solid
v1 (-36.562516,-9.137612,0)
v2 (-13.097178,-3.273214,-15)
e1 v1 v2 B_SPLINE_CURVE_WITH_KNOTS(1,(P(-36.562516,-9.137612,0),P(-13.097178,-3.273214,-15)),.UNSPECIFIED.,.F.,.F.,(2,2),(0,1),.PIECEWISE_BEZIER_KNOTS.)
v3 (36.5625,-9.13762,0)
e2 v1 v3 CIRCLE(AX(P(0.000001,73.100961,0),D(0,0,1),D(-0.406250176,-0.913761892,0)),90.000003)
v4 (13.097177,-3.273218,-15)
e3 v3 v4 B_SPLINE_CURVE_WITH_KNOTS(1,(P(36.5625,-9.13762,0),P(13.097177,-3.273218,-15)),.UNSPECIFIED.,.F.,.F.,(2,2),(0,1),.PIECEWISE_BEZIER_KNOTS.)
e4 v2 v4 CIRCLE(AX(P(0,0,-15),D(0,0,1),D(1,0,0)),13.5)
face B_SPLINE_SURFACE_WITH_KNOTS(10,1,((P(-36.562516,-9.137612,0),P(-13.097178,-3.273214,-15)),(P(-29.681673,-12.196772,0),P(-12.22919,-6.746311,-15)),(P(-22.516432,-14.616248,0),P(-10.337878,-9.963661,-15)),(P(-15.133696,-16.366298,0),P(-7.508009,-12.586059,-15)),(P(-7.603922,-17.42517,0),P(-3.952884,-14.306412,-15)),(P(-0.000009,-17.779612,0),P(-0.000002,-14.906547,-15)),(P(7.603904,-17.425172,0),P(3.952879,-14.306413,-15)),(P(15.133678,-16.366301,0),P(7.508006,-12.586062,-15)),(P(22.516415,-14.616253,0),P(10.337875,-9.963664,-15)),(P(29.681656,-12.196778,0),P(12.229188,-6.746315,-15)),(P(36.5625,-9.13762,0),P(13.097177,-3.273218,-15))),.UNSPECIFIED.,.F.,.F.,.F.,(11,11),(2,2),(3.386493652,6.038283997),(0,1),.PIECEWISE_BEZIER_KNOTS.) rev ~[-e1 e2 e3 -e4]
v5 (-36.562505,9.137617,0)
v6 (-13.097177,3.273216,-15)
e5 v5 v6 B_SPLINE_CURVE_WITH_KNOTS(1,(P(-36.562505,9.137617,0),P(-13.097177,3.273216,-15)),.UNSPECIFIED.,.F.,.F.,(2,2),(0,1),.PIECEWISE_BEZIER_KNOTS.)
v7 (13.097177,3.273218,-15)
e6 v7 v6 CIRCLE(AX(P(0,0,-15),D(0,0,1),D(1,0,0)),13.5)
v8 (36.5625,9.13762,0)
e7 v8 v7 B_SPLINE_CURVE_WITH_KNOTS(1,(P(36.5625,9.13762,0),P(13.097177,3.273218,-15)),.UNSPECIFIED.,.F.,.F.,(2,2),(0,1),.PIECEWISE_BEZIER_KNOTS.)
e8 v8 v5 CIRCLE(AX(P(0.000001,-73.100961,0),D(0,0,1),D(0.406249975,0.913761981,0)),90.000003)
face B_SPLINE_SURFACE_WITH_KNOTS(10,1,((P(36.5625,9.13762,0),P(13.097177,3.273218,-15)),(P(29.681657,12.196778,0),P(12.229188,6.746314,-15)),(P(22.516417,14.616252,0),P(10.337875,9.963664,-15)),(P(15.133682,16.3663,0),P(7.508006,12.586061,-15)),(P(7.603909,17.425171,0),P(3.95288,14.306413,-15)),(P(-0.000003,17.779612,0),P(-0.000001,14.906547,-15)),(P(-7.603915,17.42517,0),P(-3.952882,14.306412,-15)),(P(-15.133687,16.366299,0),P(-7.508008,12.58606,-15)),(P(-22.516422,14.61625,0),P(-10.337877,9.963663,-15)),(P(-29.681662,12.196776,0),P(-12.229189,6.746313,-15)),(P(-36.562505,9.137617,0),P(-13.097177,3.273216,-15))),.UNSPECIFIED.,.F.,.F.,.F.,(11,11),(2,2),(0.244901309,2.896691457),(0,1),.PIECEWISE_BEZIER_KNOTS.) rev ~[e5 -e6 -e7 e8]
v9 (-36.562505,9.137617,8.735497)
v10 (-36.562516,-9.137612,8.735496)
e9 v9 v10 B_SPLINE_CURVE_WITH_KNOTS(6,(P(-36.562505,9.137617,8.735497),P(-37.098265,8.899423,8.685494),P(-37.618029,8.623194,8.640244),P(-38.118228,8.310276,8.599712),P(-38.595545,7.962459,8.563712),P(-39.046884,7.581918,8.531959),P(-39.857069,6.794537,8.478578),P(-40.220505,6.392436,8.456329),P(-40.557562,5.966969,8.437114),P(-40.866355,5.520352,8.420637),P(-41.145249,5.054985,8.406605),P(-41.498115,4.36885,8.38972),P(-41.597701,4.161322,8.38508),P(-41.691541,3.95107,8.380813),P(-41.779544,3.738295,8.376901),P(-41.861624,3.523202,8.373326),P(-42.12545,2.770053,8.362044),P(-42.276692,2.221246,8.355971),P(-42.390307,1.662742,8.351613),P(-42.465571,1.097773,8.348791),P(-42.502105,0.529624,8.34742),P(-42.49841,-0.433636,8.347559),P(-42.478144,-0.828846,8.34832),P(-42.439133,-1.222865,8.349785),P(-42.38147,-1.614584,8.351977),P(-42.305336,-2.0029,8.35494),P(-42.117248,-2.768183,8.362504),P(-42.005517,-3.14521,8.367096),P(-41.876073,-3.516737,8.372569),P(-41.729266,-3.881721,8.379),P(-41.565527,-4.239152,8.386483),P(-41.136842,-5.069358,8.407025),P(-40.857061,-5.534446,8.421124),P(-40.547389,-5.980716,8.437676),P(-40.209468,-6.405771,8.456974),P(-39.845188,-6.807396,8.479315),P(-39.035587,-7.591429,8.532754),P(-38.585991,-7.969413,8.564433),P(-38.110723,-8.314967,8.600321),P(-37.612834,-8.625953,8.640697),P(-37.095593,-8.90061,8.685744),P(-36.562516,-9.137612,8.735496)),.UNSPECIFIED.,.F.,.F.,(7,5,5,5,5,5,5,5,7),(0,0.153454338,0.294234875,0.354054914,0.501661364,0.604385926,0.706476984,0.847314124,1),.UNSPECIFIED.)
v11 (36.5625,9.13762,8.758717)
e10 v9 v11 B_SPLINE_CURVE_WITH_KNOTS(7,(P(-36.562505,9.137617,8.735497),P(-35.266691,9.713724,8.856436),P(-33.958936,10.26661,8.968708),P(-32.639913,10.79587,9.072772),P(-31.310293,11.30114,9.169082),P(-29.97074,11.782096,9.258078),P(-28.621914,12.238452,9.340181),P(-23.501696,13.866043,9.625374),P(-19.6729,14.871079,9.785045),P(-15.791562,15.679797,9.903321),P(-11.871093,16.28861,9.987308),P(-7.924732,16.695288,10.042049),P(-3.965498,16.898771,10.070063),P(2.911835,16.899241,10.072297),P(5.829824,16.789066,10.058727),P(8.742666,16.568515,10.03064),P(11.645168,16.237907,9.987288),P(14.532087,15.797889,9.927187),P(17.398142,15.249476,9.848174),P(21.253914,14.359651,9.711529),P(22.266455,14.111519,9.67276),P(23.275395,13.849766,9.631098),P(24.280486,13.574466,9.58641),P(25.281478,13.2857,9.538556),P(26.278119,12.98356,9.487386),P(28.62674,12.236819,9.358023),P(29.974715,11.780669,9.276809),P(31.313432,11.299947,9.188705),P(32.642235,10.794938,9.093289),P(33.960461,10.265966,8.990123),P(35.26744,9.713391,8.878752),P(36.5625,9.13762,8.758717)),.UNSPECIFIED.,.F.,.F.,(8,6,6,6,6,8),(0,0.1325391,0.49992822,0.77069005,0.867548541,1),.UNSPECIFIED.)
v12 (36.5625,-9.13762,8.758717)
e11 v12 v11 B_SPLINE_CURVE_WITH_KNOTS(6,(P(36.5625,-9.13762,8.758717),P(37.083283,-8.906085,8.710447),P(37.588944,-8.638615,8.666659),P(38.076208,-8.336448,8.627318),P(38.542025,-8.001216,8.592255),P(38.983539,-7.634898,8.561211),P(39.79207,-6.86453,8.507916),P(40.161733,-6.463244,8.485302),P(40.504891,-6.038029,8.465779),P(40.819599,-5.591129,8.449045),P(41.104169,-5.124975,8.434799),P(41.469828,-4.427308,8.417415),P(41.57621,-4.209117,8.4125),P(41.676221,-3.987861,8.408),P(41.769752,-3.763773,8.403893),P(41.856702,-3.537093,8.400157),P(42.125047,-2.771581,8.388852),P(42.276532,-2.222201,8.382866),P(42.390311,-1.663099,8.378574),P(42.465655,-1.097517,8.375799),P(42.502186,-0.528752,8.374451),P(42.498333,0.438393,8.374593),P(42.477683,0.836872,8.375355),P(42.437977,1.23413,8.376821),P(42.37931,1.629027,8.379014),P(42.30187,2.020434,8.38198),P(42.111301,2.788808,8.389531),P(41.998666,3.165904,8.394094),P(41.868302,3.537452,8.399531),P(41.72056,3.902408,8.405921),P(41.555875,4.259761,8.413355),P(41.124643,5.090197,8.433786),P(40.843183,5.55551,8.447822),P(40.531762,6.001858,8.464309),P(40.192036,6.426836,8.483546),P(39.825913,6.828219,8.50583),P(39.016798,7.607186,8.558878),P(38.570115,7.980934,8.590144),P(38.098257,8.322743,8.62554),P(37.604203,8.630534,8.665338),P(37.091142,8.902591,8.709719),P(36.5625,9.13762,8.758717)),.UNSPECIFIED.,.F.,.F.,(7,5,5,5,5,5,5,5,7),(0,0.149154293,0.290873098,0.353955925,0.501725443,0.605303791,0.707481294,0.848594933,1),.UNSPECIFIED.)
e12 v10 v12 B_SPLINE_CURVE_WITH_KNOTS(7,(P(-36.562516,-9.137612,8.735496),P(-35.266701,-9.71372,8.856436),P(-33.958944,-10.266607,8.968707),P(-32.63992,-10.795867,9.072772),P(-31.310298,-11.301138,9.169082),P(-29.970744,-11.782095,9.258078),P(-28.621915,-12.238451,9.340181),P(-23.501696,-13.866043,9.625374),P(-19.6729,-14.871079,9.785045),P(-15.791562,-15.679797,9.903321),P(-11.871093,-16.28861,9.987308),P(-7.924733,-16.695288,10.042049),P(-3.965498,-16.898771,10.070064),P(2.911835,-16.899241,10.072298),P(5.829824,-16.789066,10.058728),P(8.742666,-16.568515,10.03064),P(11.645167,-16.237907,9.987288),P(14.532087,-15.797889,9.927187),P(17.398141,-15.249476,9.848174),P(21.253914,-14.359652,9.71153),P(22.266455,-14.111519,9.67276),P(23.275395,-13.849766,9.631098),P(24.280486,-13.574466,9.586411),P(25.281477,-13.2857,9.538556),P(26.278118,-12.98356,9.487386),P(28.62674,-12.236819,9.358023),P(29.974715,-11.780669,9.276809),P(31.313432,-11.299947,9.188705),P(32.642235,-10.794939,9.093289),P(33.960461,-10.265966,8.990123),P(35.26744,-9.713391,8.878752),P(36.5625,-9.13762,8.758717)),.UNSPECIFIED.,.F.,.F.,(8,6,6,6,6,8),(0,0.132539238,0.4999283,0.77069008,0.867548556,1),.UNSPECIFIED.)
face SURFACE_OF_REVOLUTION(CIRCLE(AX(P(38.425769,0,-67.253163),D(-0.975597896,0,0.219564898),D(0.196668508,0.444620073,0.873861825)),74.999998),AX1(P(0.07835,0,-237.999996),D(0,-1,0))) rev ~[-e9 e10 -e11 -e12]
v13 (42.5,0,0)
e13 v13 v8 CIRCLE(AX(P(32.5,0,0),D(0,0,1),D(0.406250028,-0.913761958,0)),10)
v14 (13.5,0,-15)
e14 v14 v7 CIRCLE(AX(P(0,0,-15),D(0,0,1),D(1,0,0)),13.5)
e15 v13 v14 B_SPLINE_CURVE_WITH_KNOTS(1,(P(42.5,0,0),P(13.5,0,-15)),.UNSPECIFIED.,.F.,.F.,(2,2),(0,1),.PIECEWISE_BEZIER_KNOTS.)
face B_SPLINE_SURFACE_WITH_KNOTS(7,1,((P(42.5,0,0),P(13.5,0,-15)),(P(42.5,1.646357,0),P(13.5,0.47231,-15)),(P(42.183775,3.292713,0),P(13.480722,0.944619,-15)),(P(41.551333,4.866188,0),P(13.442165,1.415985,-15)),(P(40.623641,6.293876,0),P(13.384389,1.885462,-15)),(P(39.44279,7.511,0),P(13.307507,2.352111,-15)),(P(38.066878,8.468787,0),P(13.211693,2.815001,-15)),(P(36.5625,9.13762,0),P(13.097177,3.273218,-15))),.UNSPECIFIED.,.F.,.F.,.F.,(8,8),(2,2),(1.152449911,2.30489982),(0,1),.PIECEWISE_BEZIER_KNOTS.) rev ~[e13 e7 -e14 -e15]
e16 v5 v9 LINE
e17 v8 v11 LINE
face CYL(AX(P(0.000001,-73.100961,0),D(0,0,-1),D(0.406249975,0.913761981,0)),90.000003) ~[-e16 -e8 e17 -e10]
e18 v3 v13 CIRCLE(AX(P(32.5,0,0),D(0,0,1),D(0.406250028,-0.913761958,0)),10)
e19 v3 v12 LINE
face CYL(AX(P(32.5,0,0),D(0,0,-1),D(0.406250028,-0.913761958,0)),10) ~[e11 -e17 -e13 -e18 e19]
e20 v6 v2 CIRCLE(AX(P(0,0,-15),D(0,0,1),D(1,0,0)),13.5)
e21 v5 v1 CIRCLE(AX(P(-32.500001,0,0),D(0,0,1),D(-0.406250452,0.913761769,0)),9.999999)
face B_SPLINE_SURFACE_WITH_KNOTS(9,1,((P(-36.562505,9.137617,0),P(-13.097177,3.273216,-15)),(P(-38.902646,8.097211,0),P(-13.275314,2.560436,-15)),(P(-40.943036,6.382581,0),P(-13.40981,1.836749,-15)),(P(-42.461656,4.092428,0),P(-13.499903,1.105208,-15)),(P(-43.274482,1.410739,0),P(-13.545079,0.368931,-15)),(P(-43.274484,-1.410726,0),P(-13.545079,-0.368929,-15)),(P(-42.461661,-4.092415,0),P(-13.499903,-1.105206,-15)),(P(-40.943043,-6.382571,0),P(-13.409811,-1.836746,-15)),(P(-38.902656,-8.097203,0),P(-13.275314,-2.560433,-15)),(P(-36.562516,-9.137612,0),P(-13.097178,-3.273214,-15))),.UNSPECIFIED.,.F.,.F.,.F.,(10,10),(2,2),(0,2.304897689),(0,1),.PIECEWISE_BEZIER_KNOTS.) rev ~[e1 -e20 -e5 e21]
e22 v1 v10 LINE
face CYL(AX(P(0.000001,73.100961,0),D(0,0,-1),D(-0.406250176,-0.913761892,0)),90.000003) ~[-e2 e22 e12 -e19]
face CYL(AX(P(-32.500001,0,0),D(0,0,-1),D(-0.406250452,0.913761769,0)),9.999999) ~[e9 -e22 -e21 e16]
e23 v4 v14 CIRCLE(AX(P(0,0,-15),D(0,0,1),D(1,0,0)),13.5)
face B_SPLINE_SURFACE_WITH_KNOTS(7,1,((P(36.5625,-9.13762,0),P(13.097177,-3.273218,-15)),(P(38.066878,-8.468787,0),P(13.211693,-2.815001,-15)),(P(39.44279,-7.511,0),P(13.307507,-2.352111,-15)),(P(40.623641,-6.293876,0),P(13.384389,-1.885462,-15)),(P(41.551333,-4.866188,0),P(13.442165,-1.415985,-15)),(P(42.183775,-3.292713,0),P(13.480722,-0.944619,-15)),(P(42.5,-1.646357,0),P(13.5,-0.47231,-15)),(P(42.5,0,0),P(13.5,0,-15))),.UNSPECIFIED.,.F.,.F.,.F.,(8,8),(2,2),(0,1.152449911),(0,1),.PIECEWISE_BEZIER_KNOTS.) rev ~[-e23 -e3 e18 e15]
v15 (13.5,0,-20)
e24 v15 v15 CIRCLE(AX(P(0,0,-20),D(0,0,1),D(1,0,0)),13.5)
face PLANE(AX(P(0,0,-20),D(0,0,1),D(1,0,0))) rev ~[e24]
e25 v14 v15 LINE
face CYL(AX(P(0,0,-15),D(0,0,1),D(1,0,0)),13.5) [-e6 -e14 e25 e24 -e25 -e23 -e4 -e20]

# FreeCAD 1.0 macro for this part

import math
import FreeCAD as App
import Part
import Sketcher
from FreeCAD import Vector

doc = App.newDocument("Part")
body = doc.addObject("PartDesign::Body", "Body")

# Sketch on XY plane
sketch1 = body.newObject("Sketcher::SketchObject", "Sketch")
sketch1.AttachmentSupport = (doc.getObject("XY_Plane"), [""])
sketch1.MapMode = "FlatFace"
sketch1.addGeometry(Part.ArcOfCircle(Part.Circle(Vector(-33, 0, 0), Vector(0, 0, 1), 10), math.radians(114), math.radians(246)), False)
sketch1.addGeometry(Part.ArcOfCircle(Part.Circle(Vector(0, 73, 0), Vector(0, 0, 1), 90), math.radians(-114), math.radians(-66)), False)
sketch1.addGeometry(Part.ArcOfCircle(Part.Circle(Vector(32, 0, 0), Vector(0, 0, 1), 10), math.radians(-66), math.radians(66)), False)
sketch1.addGeometry(Part.ArcOfCircle(Part.Circle(Vector(0, -73, 0), Vector(0, 0, 1), 90), math.radians(66), math.radians(114)), False)
sketch1.addConstraint(Sketcher.Constraint("Tangent", 0, 2, 1, 1))
sketch1.addConstraint(Sketcher.Constraint("Tangent", 1, 2, 2, 1))
sketch1.addConstraint(Sketcher.Constraint("Tangent", 2, 2, 3, 1))
sketch1.addConstraint(Sketcher.Constraint("Tangent", 3, 2, 0, 1))
sketch1.addConstraint(Sketcher.Constraint("Equal", 0, 2))
sketch1.addConstraint(Sketcher.Constraint("Equal", 1, 3))
sketch1.addConstraint(Sketcher.Constraint("Symmetric", 0, 3, 2, 3, -1, 1))
sketch1.addConstraint(Sketcher.Constraint("PointOnObject", 0, 3, -1))
sketch1.addConstraint(Sketcher.Constraint("Radius", 0, 9.999999))
sketch1.addConstraint(Sketcher.Constraint("DistanceX", 0, 3, 2, 3, 65.0))
sketch1.addConstraint(Sketcher.Constraint("Radius", 1, 90.000003))

# Sketch on XY plane
sketch2 = body.newObject("Sketcher::SketchObject", "Sketch001")
sketch2.AttachmentSupport = (doc.getObject("XY_Plane"), [""])
sketch2.MapMode = "FlatFace"
sketch2.AttachmentOffset = App.Placement(Vector(0, 0, -15), App.Rotation())
sketch2.addGeometry(Part.Circle(Vector(0, 0, 0), Vector(0, 0, 1), 14), False)
sketch2.addConstraint(Sketcher.Constraint("Coincident", 0, 3, -1, 1))
sketch2.addConstraint(Sketcher.Constraint("Diameter", 0, 27.0))

additiveloft = body.newObject("PartDesign::AdditiveLoft", "AdditiveLoft")
additiveloft.Profile = sketch1
additiveloft.Sections = [sketch2]

# Sketch on XY plane
sketch3 = body.newObject("Sketcher::SketchObject", "Sketch002")
sketch3.AttachmentSupport = (doc.getObject("XY_Plane"), [""])
sketch3.MapMode = "FlatFace"
sketch3.addGeometry(Part.ArcOfCircle(Part.Circle(Vector(-33, 0, 0), Vector(0, 0, 1), 10), math.radians(114), math.radians(246)), False)
sketch3.addGeometry(Part.ArcOfCircle(Part.Circle(Vector(0, 73, 0), Vector(0, 0, 1), 90), math.radians(-114), math.radians(-66)), False)
sketch3.addGeometry(Part.ArcOfCircle(Part.Circle(Vector(32, 0, 0), Vector(0, 0, 1), 10), math.radians(-66), math.radians(66)), False)
sketch3.addGeometry(Part.ArcOfCircle(Part.Circle(Vector(0, -73, 0), Vector(0, 0, 1), 90), math.radians(66), math.radians(114)), False)
sketch3.addConstraint(Sketcher.Constraint("Tangent", 0, 2, 1, 1))
sketch3.addConstraint(Sketcher.Constraint("Tangent", 1, 2, 2, 1))
sketch3.addConstraint(Sketcher.Constraint("Tangent", 2, 2, 3, 1))
sketch3.addConstraint(Sketcher.Constraint("Tangent", 3, 2, 0, 1))
sketch3.addConstraint(Sketcher.Constraint("Equal", 0, 2))
sketch3.addConstraint(Sketcher.Constraint("Equal", 1, 3))
sketch3.addConstraint(Sketcher.Constraint("Symmetric", 0, 3, 2, 3, -1, 1))
sketch3.addConstraint(Sketcher.Constraint("PointOnObject", 0, 3, -1))
sketch3.addConstraint(Sketcher.Constraint("Radius", 0, 9.999999))
sketch3.addConstraint(Sketcher.Constraint("DistanceX", 0, 3, 2, 3, 65.0))
sketch3.addConstraint(Sketcher.Constraint("Radius", 1, 90.000003))
pad1 = body.newObject("PartDesign::Pad", "Pad")
pad1.Profile = sketch3
pad1.Length = 12

# Sketch on XY plane
sketch4 = body.newObject("Sketcher::SketchObject", "Sketch003")
sketch4.AttachmentSupport = (doc.getObject("XY_Plane"), [""])
sketch4.MapMode = "FlatFace"
sketch4.AttachmentOffset = App.Placement(Vector(0, 0, -15), App.Rotation())
sketch4.addGeometry(Part.Circle(Vector(0, 0, 0), Vector(0, 0, 1), 14), False)
sketch4.addConstraint(Sketcher.Constraint("Coincident", 0, 3, -1, 1))
sketch4.addConstraint(Sketcher.Constraint("Diameter", 0, 27.0))
pad2 = body.newObject("PartDesign::Pad", "Pad001")
pad2.Profile = sketch4
pad2.Length = 5
pad2.Reversed = True

# Sketch on YZ plane
sketch5 = body.newObject("Sketcher::SketchObject", "Sketch004")
sketch5.AttachmentSupport = (doc.getObject("YZ_Plane"), [""])
sketch5.MapMode = "FlatFace"
sketch5.addGeometry(Part.ArcOfCircle(Part.Circle(Vector(0, -63, 0), Vector(0, 0, 1), 75), math.radians(64), math.radians(115)), False)
sketch5.addGeometry(Part.LineSegment(Vector(33, 4, 0), Vector(33, 35, 0)), False)
sketch5.addGeometry(Part.LineSegment(Vector(33, 35, 0), Vector(-31, 35, 0)), False)
sketch5.addGeometry(Part.LineSegment(Vector(-31, 35, 0), Vector(-31, 5, 0)), False)
sketch5.addConstraint(Sketcher.Constraint("Coincident", 0, 1, 1, 1))
sketch5.addConstraint(Sketcher.Constraint("Coincident", 1, 2, 2, 1))
sketch5.addConstraint(Sketcher.Constraint("Coincident", 2, 2, 3, 1))
sketch5.addConstraint(Sketcher.Constraint("Coincident", 3, 2, 0, 2))
sketch5.addConstraint(Sketcher.Constraint("Vertical", 1))
sketch5.addConstraint(Sketcher.Constraint("Horizontal", 2))
sketch5.addConstraint(Sketcher.Constraint("Vertical", 3))
sketch5.addConstraint(Sketcher.Constraint("PointOnObject", 0, 3, -2))
sketch5.addConstraint(Sketcher.Constraint("Radius", 0, 74.999998))
sketch5.addConstraint(Sketcher.Constraint("DistanceX", 2, 2, 2, 1, 64.597571))
sketch5.addConstraint(Sketcher.Constraint("DistanceY", 3, 2, 3, 1, 29.70638))
sketch5.addConstraint(Sketcher.Constraint("DistanceY", 1, 1, 1, 2, 30.706397))
sketch5.addConstraint(Sketcher.Constraint("DistanceY", 0, 3, -1, 1, 62.999997))

# Sketch on XZ plane
sketch6 = body.newObject("Sketcher::SketchObject", "Sketch005")
sketch6.AttachmentSupport = (doc.getObject("XZ_Plane"), [""])
sketch6.MapMode = "FlatFace"
sketch6.addGeometry(Part.ArcOfCircle(Part.Circle(Vector(0, -238, 0), Vector(0, 0, 1), 250), math.radians(77), math.radians(103)), False)
sketch6.addConstraint(Sketcher.Constraint("Radius", 0, 249.999996))
sketch6.addConstraint(Sketcher.Constraint("DistanceX", -1, 1, 0, 3, 0.07835))
sketch6.addConstraint(Sketcher.Constraint("DistanceY", 0, 3, 0, 1, 243.916661))
sketch6.addConstraint(Sketcher.Constraint("DistanceY", 0, 3, 0, 2, 243.916661))
sketch6.addConstraint(Sketcher.Constraint("DistanceY", 0, 3, -1, 1, 237.999996))
doc.recompute()

subtractivepipe = body.newObject("PartDesign::SubtractivePipe", "SubtractivePipe")
subtractivepipe.Profile = sketch5
subtractivepipe.Spine = (sketch6, ["Edge1"])

doc.recompute()
